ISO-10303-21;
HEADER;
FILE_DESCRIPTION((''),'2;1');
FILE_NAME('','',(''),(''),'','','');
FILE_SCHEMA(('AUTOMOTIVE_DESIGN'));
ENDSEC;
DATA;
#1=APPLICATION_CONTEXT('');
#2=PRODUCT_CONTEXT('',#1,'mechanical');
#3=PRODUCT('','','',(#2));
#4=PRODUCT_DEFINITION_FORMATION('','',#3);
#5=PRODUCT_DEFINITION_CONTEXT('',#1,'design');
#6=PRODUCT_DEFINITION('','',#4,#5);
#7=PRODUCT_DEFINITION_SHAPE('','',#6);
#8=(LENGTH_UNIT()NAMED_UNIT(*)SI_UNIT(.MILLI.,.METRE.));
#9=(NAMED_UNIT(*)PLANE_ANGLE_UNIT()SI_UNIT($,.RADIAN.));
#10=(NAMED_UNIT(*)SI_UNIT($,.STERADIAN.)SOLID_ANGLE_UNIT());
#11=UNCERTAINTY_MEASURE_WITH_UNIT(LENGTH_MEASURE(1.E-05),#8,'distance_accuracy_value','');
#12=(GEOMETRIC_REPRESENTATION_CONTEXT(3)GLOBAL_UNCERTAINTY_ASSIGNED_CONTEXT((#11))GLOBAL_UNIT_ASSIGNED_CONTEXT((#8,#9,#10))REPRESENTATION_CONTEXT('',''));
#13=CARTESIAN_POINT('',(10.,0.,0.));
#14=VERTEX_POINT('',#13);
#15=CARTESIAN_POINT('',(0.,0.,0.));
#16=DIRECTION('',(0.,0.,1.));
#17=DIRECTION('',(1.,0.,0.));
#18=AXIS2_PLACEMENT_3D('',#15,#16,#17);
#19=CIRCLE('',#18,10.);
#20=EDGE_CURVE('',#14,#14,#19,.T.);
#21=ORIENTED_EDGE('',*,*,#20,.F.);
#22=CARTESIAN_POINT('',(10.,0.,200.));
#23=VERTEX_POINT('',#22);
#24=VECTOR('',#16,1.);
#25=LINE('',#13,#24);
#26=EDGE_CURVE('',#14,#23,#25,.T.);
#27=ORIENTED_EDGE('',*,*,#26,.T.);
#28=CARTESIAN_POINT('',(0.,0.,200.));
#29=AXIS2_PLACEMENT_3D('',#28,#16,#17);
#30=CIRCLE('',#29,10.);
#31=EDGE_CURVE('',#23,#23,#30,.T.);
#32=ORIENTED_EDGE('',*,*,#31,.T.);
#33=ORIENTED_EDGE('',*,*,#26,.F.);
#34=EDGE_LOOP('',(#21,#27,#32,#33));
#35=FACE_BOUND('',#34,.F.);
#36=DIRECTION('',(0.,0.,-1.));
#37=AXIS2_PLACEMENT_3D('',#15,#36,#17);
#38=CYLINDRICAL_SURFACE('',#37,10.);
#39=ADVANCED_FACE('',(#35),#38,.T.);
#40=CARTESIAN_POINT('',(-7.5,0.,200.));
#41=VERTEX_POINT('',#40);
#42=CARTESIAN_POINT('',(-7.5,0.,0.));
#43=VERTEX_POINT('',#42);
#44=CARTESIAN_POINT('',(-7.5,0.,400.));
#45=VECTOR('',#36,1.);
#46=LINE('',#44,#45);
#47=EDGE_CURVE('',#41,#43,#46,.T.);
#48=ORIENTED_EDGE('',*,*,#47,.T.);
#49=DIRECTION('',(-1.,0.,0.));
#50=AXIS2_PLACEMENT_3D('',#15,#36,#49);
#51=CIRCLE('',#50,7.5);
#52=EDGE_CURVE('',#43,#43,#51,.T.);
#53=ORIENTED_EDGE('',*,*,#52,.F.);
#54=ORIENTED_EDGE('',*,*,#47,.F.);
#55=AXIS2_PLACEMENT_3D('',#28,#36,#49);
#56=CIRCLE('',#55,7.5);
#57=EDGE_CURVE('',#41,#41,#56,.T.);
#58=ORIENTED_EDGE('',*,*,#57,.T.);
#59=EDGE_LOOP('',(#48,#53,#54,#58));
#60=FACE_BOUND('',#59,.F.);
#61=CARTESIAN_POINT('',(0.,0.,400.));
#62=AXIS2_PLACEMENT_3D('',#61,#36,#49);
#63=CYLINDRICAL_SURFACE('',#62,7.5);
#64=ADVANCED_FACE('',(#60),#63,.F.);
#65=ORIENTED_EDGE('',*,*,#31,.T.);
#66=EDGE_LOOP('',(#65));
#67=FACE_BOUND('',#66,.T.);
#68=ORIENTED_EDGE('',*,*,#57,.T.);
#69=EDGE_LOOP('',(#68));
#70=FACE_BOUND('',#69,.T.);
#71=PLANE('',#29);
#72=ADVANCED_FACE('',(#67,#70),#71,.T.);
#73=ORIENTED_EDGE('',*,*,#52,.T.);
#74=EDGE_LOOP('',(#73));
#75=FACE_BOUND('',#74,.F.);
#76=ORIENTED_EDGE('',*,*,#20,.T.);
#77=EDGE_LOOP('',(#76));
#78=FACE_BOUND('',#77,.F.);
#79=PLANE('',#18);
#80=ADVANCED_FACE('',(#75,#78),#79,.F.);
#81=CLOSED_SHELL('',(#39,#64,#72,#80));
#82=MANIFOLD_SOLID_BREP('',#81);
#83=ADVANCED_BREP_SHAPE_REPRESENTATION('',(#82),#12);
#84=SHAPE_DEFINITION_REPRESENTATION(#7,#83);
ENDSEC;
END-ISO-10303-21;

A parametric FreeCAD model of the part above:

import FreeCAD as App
import Part
import Sketcher

V = App.Vector
Q = App.Units.Quantity

doc = App.newDocument("Part")
body = doc.addObject("PartDesign::Body", "Body")

# Sketch on XY plane
sketch1 = body.newObject("Sketcher::SketchObject", "Sketch")
sketch1.AttachmentSupport = (doc.getObject("XY_Plane"), [""])
sketch1.MapMode = "FlatFace"
sketch1.addGeometry(Part.Circle(V(0, 0, 0), V(0, 0, 1), 10), False)
sketch1.addConstraint([
    Sketcher.Constraint("Coincident", 0, 3, -1, 1),
    Sketcher.Constraint("Diameter", 0, Q("20 mm")),
])
pad1 = body.newObject("PartDesign::Pad", "Pad")
pad1.Profile = sketch1
pad1.Length = 200

# Sketch on XY plane
sketch2 = body.newObject("Sketcher::SketchObject", "Sketch001")
sketch2.AttachmentSupport = (doc.getObject("XY_Plane"), [""])
sketch2.MapMode = "FlatFace"
sketch2.addGeometry(Part.Circle(V(0, 0, 0), V(0, 0, 1), 1.5), False)
sketch2.addConstraint([
    Sketcher.Constraint("Coincident", 0, 3, -1, 1),
    Sketcher.Constraint("Diameter", 0, Q("3 mm")),
])
doc.recompute()
hole = body.newObject("PartDesign::Hole", "Hole")
hole.Profile = sketch2
hole.ThreadType = "None"
hole.Diameter = 3
hole.DepthType = "Dimension"
hole.Depth = 100
hole.DrillPoint = "Flat"
hole.Reversed = True

# Sketch on XY plane
sketch3 = body.newObject("Sketcher::SketchObject", "Sketch002")
sketch3.AttachmentSupport = (doc.getObject("XY_Plane"), [""])
sketch3.MapMode = "FlatFace"
sketch3.AttachmentOffset = App.Placement(V(0, 0, 200), App.Rotation())
sketch3.addGeometry(Part.Circle(V(0, 0, 0), V(0, 0, 1), 8), False)
sketch3.addConstraint([
    Sketcher.Constraint("Coincident", 0, 3, -1, 1),
    Sketcher.Constraint("Diameter", 0, Q("15 mm")),
])
doc.recompute()
hole2 = body.newObject("PartDesign::Hole", "Hole001")
hole2.Profile = sketch3
hole2.ThreadType = "None"
hole2.Diameter = 15
hole2.DepthType = "Dimension"
hole2.Depth = 200
hole2.DrillPoint = "Flat"

doc.recompute()
